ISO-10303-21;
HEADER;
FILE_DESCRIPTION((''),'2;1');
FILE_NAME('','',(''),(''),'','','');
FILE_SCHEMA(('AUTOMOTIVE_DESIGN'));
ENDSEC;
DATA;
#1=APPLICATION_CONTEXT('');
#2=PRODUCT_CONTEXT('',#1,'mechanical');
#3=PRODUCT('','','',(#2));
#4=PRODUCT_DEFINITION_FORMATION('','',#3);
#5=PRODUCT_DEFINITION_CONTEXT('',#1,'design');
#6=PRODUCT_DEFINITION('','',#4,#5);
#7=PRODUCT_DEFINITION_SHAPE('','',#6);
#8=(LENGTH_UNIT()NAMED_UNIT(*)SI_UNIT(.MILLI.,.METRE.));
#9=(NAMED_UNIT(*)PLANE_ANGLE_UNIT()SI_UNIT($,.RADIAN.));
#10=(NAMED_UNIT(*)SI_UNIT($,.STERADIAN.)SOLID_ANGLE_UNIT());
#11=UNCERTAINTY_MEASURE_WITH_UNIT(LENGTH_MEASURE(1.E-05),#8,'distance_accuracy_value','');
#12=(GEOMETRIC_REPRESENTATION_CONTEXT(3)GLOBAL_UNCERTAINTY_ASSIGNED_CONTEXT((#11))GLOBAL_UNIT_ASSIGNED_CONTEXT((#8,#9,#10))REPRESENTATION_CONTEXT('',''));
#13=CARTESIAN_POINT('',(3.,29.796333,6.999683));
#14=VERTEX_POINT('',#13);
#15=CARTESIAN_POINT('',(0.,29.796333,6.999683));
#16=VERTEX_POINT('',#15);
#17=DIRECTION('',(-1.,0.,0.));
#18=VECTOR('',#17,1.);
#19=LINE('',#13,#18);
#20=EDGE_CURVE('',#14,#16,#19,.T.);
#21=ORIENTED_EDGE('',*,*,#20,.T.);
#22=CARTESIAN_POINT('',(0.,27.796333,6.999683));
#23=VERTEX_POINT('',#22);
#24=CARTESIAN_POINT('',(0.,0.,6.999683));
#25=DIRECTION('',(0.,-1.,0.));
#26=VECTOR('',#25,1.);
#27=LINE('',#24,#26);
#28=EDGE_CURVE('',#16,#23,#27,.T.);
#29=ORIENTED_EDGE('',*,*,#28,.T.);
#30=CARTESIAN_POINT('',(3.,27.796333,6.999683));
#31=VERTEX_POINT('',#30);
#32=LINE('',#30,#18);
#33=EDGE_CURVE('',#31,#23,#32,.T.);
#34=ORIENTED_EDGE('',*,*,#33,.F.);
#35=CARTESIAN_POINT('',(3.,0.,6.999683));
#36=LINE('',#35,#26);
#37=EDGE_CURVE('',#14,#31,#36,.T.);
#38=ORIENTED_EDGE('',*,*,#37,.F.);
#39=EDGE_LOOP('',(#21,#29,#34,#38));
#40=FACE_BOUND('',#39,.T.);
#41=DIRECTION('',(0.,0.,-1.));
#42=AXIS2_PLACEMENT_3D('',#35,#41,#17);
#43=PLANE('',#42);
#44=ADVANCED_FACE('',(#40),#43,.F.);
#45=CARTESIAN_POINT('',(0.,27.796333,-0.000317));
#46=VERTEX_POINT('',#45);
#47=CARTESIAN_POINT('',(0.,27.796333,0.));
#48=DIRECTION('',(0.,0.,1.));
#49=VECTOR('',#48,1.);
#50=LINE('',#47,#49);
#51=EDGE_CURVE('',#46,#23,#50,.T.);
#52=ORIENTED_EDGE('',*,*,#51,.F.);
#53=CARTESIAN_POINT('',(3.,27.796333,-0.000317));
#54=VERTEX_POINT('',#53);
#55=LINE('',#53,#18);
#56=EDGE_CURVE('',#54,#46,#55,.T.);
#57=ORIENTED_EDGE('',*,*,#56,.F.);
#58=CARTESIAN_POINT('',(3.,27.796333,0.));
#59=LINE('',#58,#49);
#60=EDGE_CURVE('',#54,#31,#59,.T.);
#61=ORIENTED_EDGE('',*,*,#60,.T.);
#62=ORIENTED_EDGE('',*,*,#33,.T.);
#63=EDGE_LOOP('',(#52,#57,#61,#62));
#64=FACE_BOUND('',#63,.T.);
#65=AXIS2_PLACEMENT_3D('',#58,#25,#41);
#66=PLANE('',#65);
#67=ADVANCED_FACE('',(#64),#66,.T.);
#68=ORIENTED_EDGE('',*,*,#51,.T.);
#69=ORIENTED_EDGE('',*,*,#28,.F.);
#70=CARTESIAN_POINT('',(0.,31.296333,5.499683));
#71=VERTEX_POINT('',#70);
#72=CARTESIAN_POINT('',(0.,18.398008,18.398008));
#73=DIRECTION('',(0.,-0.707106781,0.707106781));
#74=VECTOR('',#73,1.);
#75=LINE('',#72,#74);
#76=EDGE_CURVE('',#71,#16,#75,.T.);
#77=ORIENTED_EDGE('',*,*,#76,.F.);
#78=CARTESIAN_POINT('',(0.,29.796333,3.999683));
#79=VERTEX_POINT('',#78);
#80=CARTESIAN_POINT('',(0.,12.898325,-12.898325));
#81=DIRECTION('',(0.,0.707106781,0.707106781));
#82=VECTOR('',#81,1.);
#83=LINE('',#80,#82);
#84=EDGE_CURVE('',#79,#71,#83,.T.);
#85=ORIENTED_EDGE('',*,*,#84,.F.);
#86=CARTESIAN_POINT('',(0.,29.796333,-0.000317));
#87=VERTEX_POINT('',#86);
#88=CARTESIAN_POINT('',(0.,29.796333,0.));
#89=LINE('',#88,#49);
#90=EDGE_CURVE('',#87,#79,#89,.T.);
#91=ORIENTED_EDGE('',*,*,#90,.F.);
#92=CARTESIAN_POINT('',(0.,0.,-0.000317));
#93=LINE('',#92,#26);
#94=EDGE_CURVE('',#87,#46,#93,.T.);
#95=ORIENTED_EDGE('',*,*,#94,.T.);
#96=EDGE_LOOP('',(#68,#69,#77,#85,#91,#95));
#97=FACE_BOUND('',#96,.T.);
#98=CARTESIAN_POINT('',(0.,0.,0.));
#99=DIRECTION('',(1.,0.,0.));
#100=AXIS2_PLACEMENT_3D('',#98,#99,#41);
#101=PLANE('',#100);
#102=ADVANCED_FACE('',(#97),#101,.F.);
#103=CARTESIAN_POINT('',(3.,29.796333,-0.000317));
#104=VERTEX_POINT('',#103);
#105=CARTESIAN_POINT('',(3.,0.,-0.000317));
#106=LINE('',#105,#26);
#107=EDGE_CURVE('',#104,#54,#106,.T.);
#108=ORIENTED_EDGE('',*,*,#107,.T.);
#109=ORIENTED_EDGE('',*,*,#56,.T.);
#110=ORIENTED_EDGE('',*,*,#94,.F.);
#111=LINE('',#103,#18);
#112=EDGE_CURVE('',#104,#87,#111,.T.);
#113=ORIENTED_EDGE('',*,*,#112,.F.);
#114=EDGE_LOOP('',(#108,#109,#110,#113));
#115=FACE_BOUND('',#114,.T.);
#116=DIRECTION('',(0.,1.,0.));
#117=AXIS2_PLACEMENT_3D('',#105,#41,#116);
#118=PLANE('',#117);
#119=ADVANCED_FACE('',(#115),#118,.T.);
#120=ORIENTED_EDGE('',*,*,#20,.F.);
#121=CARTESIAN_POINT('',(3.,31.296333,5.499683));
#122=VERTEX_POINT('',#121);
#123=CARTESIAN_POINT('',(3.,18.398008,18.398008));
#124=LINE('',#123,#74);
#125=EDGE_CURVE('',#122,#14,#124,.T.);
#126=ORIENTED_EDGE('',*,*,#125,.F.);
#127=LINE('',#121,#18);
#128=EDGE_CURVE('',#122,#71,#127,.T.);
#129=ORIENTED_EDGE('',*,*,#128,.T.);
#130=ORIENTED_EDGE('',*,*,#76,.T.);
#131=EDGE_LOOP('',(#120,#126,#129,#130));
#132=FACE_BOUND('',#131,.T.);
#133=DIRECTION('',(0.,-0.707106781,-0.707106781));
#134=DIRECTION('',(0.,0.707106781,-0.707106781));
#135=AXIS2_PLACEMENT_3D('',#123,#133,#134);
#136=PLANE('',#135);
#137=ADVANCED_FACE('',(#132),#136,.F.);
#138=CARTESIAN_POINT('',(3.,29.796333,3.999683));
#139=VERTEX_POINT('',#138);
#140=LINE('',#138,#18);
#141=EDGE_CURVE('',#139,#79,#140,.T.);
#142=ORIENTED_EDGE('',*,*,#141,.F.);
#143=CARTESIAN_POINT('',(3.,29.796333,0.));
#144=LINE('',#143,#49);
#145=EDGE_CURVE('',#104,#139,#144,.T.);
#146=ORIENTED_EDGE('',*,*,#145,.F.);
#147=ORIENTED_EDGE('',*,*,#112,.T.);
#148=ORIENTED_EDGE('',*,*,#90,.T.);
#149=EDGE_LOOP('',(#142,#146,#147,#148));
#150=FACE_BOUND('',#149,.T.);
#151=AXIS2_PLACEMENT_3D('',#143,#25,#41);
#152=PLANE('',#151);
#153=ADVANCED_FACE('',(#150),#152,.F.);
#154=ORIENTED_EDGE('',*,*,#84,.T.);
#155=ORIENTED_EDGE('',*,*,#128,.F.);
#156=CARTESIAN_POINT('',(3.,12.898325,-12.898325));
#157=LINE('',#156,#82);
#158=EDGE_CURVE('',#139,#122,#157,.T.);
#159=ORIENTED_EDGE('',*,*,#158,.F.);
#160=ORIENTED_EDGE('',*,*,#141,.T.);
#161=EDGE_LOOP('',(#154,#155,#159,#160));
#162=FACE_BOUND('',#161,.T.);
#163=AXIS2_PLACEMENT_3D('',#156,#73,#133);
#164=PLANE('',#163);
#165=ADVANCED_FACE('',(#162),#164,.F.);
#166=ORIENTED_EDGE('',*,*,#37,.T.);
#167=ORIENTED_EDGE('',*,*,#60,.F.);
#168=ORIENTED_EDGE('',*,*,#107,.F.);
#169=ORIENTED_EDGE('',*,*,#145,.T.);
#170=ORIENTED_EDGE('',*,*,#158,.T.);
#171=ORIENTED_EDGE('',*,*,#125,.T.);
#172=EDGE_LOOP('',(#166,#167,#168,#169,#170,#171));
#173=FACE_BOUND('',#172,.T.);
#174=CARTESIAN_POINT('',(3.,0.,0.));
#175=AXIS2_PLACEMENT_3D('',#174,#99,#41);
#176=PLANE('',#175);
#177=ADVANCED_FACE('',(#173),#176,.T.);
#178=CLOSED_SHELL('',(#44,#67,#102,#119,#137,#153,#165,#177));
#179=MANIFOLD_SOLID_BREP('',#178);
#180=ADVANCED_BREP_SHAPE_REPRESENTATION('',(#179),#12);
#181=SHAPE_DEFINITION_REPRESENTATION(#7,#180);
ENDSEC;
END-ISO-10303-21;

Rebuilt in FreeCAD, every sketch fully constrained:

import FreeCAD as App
import Part
import Sketcher
from FreeCAD import Vector

doc = App.newDocument("Part")
body = doc.addObject("PartDesign::Body", "Body")

# Sketch on YZ plane
sketch1 = body.newObject("Sketcher::SketchObject", "Sketch")
sketch1.AttachmentSupport = (doc.getObject("YZ_Plane"), [""])
sketch1.MapMode = "FlatFace"
sketch1.addGeometry([
    Part.LineSegment(Vector(27.8, 0, 0), Vector(29.8, 0, 0)),  # 0
    Part.LineSegment(Vector(29.8, 0, 0), Vector(29.8, 4, 0)),  # 1
    Part.LineSegment(Vector(29.8, 4, 0), Vector(31.3, 5.5, 0)),  # 2
    Part.LineSegment(Vector(31.3, 5.5, 0), Vector(29.8, 7, 0)),  # 3
    Part.LineSegment(Vector(29.8, 7, 0), Vector(27.8, 7, 0)),  # 4
    Part.LineSegment(Vector(27.8, 7, 0), Vector(27.8, 0, 0)),  # 5
], False)
sketch1.addConstraint([
    Sketcher.Constraint("Coincident", 0, 2, 1, 1),
    Sketcher.Constraint("Coincident", 1, 2, 2, 1),
    Sketcher.Constraint("Coincident", 2, 2, 3, 1),
    Sketcher.Constraint("Coincident", 3, 2, 4, 1),
    Sketcher.Constraint("Coincident", 4, 2, 5, 1),
    Sketcher.Constraint("Coincident", 5, 2, 0, 1),
    Sketcher.Constraint("Horizontal", 0),
    Sketcher.Constraint("Vertical", 1),
    Sketcher.Constraint("Horizontal", 4),
    Sketcher.Constraint("Vertical", 5),
    Sketcher.Constraint("Perpendicular", 2, 3),
    Sketcher.Constraint("Vertical", 1, 2, 3, 2),
    Sketcher.Constraint("Equal", 2, 3),
    Sketcher.Constraint("DistanceX", 0, 1, 0, 2, 2.0),
    Sketcher.Constraint("DistanceY", 1, 1, 1, 2, 4.0),
    Sketcher.Constraint("DistanceY", 5, 2, 5, 1, 7.0),
    Sketcher.Constraint("DistanceX", -1, 1, 0, 2, 29.796333),
    Sketcher.Constraint("DistanceY", 0, 2, -1, 1, 0.000317),
])
pad1 = body.newObject("PartDesign::Pad", "Pad")
pad1.Profile = sketch1
pad1.Length = 3

doc.recompute()
